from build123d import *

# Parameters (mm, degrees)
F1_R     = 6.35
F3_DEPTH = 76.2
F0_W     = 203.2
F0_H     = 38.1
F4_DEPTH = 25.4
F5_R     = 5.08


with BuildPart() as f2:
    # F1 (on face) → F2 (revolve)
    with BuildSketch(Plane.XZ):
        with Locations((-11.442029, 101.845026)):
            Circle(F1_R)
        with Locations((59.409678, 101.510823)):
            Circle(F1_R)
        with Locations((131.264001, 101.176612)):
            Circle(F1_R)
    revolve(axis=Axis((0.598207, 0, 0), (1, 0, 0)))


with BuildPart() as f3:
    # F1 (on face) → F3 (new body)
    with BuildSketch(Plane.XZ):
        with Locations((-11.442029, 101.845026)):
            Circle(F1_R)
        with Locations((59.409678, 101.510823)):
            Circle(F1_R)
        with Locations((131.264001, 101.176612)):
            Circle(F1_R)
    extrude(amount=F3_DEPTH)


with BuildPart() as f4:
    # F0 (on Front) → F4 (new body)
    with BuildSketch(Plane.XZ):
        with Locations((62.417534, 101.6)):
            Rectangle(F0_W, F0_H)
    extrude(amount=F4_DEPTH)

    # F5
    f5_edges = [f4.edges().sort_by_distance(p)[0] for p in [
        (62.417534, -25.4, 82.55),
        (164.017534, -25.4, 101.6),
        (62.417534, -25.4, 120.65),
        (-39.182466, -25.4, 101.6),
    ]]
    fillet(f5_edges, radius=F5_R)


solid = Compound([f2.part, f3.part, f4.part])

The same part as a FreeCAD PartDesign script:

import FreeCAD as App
import Part
import Sketcher
Q = App.Units.Quantity


def edges_at(feature, points):
    """Names of the edges that pass closest to the given points."""
    edges = feature.Shape.Edges
    near = lambda p: min(range(len(edges)), key=lambda i: edges[i].distToShape(Part.Vertex(*p))[0])
    return sorted({f"Edge{near(p) + 1}" for p in points})

doc = App.newDocument("Part")
body = doc.addObject("PartDesign::Body", "Body")
body.AllowCompound = True

# Sketch on XZ plane
sketch1 = body.newObject("Sketcher::SketchObject", "Sketch")
sketch1.AttachmentSupport = (doc.getObject("XZ_Plane"), [""])
sketch1.MapMode = "FlatFace"
sketch1.addGeometry([
    Part.Circle(App.Vector(-11, 102, 0), App.Vector(0, 0, 1), 6),
    Part.Circle(App.Vector(59, 102, 0), App.Vector(0, 0, 1), 6),
    Part.Circle(App.Vector(131, 101, 0), App.Vector(0, 0, 1), 6),
], False)
sketch1.addConstraint([
    Sketcher.Constraint("Equal", 0, 1),
    Sketcher.Constraint("Equal", 1, 2),
    Sketcher.Constraint("Diameter", 0, Q("0.5 in")),
    Sketcher.Constraint("DistanceX", -1, 1, 2, 3, 131.264001),
    Sketcher.Constraint("DistanceX", 0, 3, -1, 1, 11.442029),
    Sketcher.Constraint("DistanceY", 2, 3, 1, 3, 0.334211),
    Sketcher.Constraint("DistanceY", -1, 1, 0, 3, 101.845026),
    Sketcher.Constraint("DistanceX", -1, 1, 1, 3, 59.409678),
    Sketcher.Constraint("DistanceY", -1, 1, 1, 3, 101.510823),
])
revolution = body.newObject("PartDesign::Revolution", "Revolution")
revolution.Profile = sketch1
revolution.ReferenceAxis = (sketch1, ["H_Axis"])
revolution.Angle = 360
body2 = doc.addObject("PartDesign::Body", "Body001")
body2.AllowCompound = True

# Sketch on XZ plane
sketch2 = body2.newObject("Sketcher::SketchObject", "Sketch001")
sketch2.AttachmentSupport = (doc.getObject("XZ_Plane001"), [""])
sketch2.MapMode = "FlatFace"
sketch2.addGeometry([
    Part.Circle(App.Vector(-11, 102, 0), App.Vector(0, 0, 1), 6),
    Part.Circle(App.Vector(59, 102, 0), App.Vector(0, 0, 1), 6),
    Part.Circle(App.Vector(131, 101, 0), App.Vector(0, 0, 1), 6),
], False)
sketch2.addConstraint([
    Sketcher.Constraint("Equal", 0, 1),
    Sketcher.Constraint("Equal", 1, 2),
    Sketcher.Constraint("Diameter", 0, Q("0.5 in")),
    Sketcher.Constraint("DistanceX", -1, 1, 2, 3, 131.264001),
    Sketcher.Constraint("DistanceX", 0, 3, -1, 1, 11.442029),
    Sketcher.Constraint("DistanceY", 2, 3, 1, 3, 0.334211),
    Sketcher.Constraint("DistanceY", -1, 1, 0, 3, 101.845026),
    Sketcher.Constraint("DistanceX", -1, 1, 1, 3, 59.409678),
    Sketcher.Constraint("DistanceY", -1, 1, 1, 3, 101.510823),
])
pad1 = body2.newObject("PartDesign::Pad", "Pad")
pad1.Profile = sketch2
pad1.Length = Q("3 in")
body3 = doc.addObject("PartDesign::Body", "Body002")

# Sketch on XZ plane
sketch3 = body3.newObject("Sketcher::SketchObject", "Sketch002")
sketch3.AttachmentSupport = (doc.getObject("XZ_Plane002"), [""])
sketch3.MapMode = "FlatFace"
sketch3.addGeometry([
    Part.LineSegment(App.Vector(-39, 121, 0), App.Vector(-39, 83, 0)),
    Part.LineSegment(App.Vector(-39, 83, 0), App.Vector(164, 83, 0)),
    Part.LineSegment(App.Vector(164, 83, 0), App.Vector(164, 121, 0)),
    Part.LineSegment(App.Vector(164, 121, 0), App.Vector(-39, 121, 0)),
], False)
sketch3.addConstraint([
    Sketcher.Constraint("Coincident", 0, 2, 1, 1),
    Sketcher.Constraint("Coincident", 1, 2, 2, 1),
    Sketcher.Constraint("Coincident", 2, 2, 3, 1),
    Sketcher.Constraint("Coincident", 3, 2, 0, 1),
    Sketcher.Constraint("Vertical", 0),
    Sketcher.Constraint("Horizontal", 1),
    Sketcher.Constraint("Vertical", 2),
    Sketcher.Constraint("Horizontal", 3),
    Sketcher.Constraint("DistanceX", 1, 1, 1, 2, Q("8 in")),
    Sketcher.Constraint("DistanceY", 0, 2, 0, 1, Q("1.5 in")),
    Sketcher.Constraint("DistanceY", -1, 1, 0, 2, Q("3.25 in")),
    Sketcher.Constraint("DistanceX", 0, 2, -1, 1, 39.182466),
])
pad2 = body3.newObject("PartDesign::Pad", "Pad001")
pad2.Profile = sketch3
pad2.Length = Q("1 in")
doc.recompute()

fillet = body3.newObject("PartDesign::Fillet", "Fillet")
fillet.Base = (pad2, edges_at(pad2, [
    (62.418, -25.4, 82.55),
    (164.018, -25.4, 101.6),
    (62.418, -25.4, 120.65),
    (-39.182, -25.4, 101.6),
]))
fillet.Radius = Q("0.2 in")

doc.recompute()
